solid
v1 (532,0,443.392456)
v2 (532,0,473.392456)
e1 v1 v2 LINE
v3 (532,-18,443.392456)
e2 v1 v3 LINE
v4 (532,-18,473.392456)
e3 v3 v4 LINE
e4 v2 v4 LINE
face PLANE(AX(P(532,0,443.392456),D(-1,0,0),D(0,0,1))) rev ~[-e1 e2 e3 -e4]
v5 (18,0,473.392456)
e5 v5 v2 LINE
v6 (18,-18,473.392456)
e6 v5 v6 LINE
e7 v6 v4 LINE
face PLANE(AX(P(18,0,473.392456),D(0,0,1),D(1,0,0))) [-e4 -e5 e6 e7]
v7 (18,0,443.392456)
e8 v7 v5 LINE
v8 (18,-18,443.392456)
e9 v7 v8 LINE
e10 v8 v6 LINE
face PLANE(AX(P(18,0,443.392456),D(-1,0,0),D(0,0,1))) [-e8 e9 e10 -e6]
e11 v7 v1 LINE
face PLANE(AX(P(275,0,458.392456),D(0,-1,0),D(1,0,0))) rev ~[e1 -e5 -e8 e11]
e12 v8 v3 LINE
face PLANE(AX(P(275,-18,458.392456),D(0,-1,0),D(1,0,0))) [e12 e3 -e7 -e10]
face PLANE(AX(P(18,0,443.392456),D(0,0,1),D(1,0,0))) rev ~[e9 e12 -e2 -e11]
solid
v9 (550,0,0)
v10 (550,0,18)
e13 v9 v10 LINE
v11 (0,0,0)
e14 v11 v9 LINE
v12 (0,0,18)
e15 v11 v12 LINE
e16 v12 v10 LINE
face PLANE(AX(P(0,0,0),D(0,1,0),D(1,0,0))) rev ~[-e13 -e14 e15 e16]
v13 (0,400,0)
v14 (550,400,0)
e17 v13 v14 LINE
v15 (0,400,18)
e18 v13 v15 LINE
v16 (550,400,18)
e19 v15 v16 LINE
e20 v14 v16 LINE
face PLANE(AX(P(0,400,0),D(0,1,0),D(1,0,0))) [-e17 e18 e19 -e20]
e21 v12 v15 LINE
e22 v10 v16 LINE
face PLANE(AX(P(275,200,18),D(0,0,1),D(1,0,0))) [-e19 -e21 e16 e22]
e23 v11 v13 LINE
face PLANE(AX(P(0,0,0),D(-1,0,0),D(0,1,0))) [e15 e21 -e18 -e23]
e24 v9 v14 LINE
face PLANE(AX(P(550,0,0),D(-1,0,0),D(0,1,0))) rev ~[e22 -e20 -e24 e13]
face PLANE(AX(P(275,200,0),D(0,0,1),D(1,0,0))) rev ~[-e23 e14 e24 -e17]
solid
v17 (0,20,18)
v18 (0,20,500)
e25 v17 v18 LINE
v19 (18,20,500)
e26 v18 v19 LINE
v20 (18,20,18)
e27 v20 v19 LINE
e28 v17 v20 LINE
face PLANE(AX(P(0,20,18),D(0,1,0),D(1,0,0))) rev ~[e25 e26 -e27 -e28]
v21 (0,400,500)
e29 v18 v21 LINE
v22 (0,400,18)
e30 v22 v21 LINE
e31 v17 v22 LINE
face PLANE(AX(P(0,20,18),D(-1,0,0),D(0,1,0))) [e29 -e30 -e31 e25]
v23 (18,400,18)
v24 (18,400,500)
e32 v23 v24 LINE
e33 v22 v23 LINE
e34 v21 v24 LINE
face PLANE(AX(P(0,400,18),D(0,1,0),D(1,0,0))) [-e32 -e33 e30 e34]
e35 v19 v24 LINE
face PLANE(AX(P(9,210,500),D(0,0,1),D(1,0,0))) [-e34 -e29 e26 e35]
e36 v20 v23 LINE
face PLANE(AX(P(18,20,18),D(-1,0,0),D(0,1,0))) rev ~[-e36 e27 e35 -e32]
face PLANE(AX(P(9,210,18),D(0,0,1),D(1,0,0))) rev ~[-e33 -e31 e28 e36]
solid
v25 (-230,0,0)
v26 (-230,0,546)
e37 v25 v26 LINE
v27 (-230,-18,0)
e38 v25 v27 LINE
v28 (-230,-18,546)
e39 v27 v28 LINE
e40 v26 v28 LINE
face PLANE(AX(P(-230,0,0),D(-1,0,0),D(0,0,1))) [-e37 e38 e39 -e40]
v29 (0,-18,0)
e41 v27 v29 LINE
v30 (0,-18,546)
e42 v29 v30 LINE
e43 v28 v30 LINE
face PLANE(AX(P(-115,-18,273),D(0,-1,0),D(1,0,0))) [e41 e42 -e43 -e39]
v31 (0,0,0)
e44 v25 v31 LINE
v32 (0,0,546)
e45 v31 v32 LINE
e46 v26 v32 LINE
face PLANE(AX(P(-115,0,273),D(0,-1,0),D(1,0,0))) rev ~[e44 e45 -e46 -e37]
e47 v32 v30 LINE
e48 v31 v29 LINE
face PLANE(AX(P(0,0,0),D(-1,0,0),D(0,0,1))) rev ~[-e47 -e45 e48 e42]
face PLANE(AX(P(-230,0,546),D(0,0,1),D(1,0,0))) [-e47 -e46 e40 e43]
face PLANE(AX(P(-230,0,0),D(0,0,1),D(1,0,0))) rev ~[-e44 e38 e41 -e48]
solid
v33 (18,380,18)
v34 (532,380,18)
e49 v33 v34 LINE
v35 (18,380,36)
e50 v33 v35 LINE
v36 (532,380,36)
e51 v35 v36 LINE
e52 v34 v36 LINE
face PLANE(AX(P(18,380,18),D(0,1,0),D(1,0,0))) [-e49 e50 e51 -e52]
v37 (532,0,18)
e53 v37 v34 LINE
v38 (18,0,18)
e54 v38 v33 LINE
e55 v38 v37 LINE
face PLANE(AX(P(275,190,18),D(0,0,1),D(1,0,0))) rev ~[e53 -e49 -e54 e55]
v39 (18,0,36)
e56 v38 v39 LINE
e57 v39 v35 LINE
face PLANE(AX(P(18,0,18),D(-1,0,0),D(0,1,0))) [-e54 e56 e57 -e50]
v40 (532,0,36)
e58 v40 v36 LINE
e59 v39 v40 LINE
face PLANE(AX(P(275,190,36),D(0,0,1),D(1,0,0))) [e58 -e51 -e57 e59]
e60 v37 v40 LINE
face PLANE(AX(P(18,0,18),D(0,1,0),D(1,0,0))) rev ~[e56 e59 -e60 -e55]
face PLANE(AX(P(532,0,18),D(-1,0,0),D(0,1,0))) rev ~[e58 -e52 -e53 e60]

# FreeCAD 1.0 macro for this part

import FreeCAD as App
import Part
import Sketcher

V = App.Vector


def add_polygon(sketch, points):
    """Adds a closed chain of lines whose ends are joined by coincident constraints."""
    first, n = sketch.GeometryCount, len(points)
    for a, b in zip(points, points[1:] + points[:1]):
        sketch.addGeometry(Part.LineSegment(App.Vector(*a, 0), App.Vector(*b, 0)), False)
    for i in range(n):
        sketch.addConstraint(Sketcher.Constraint("Coincident", first + i, 2, first + (i + 1) % n, 1))

doc = App.newDocument("Part")
body = doc.addObject("PartDesign::Body", "Body")

sketch1 = body.newObject("Sketcher::SketchObject", "Sketch")
sketch1.AttachmentSupport = (doc.getObject("XY_Plane"), [""])
sketch1.MapMode = "FlatFace"
add_polygon(sketch1, [(0, 400), (0, 0), (550, 0), (550, 400)])
sketch1.addConstraint([
    Sketcher.Constraint("Vertical", 0),
    Sketcher.Constraint("Horizontal", 1),
    Sketcher.Constraint("Vertical", 2),
    Sketcher.Constraint("Horizontal", 3),
    Sketcher.Constraint("Coincident", 0, 2, -1, 1),
    Sketcher.Constraint("DistanceX", 1, 1, 1, 2, 550.0),
    Sketcher.Constraint("DistanceY", 0, 2, 0, 1, 400.0),
])
pad1 = body.newObject("PartDesign::Pad", "Pad")
pad1.Profile = sketch1
pad1.Length = 18
body2 = doc.addObject("PartDesign::Body", "Body001")

sketch2 = body2.newObject("Sketcher::SketchObject", "Sketch001")
sketch2.AttachmentSupport = (doc.getObject("XY_Plane001"), [""])
sketch2.MapMode = "FlatFace"
sketch2.AttachmentOffset = App.Placement(V(0, 0, 18), App.Rotation())
add_polygon(sketch2, [(0, 400), (0, 20), (18, 20), (18, 400)])
sketch2.addConstraint([
    Sketcher.Constraint("Vertical", 0),
    Sketcher.Constraint("Horizontal", 1),
    Sketcher.Constraint("Vertical", 2),
    Sketcher.Constraint("Horizontal", 3),
    Sketcher.Constraint("PointOnObject", 0, 2, -2),
    Sketcher.Constraint("DistanceX", 1, 1, 1, 2, 18.0),
    Sketcher.Constraint("DistanceY", 0, 2, 0, 1, 380.0),
    Sketcher.Constraint("DistanceY", -1, 1, 0, 2, 20.0),
])
pad2 = body2.newObject("PartDesign::Pad", "Pad001")
pad2.Profile = sketch2
pad2.Length = 482
body3 = doc.addObject("PartDesign::Body", "Body002")

sketch3 = body3.newObject("Sketcher::SketchObject", "Sketch002")
sketch3.AttachmentSupport = (doc.getObject("XZ_Plane002"), [""])
sketch3.MapMode = "FlatFace"
add_polygon(sketch3, [(18, 473), (18, 443), (532, 443), (532, 473)])
sketch3.addConstraint([
    Sketcher.Constraint("Vertical", 0),
    Sketcher.Constraint("Horizontal", 1),
    Sketcher.Constraint("Vertical", 2),
    Sketcher.Constraint("Horizontal", 3),
    Sketcher.Constraint("DistanceX", 1, 1, 1, 2, 514.0),
    Sketcher.Constraint("DistanceY", 0, 2, 0, 1, 30.0),
    Sketcher.Constraint("DistanceX", -1, 1, 0, 2, 18.0),
    Sketcher.Constraint("DistanceY", -1, 1, 0, 2, 443.392456),
])
pad3 = body3.newObject("PartDesign::Pad", "Pad002")
pad3.Profile = sketch3
pad3.Length = 18
body4 = doc.addObject("PartDesign::Body", "Body003")

sketch4 = body4.newObject("Sketcher::SketchObject", "Sketch003")
sketch4.AttachmentSupport = (doc.getObject("XY_Plane003"), [""])
sketch4.MapMode = "FlatFace"
sketch4.AttachmentOffset = App.Placement(V(0, 0, 18), App.Rotation())
add_polygon(sketch4, [(18, 380), (18, 0), (532, 0), (532, 380)])
sketch4.addConstraint([
    Sketcher.Constraint("Vertical", 0),
    Sketcher.Constraint("Horizontal", 1),
    Sketcher.Constraint("Vertical", 2),
    Sketcher.Constraint("Horizontal", 3),
    Sketcher.Constraint("PointOnObject", 0, 2, -1),
    Sketcher.Constraint("DistanceX", 1, 1, 1, 2, 514.0),
    Sketcher.Constraint("DistanceY", 0, 2, 0, 1, 380.0),
    Sketcher.Constraint("DistanceX", -1, 1, 0, 2, 18.0),
])
pad4 = body4.newObject("PartDesign::Pad", "Pad003")
pad4.Profile = sketch4
pad4.Length = 18
body5 = doc.addObject("PartDesign::Body", "Body004")

sketch5 = body5.newObject("Sketcher::SketchObject", "Sketch004")
sketch5.AttachmentSupport = (doc.getObject("XZ_Plane004"), [""])
sketch5.MapMode = "FlatFace"
add_polygon(sketch5, [(-230, 546), (-230, 0), (0, 0), (0, 546)])
sketch5.addConstraint([
    Sketcher.Constraint("Vertical", 0),
    Sketcher.Constraint("Horizontal", 1),
    Sketcher.Constraint("Vertical", 2),
    Sketcher.Constraint("Horizontal", 3),
    Sketcher.Constraint("Coincident", 1, 2, -1, 1),
    Sketcher.Constraint("DistanceX", 1, 1, 1, 2, 230.0),
    Sketcher.Constraint("DistanceY", 0, 2, 0, 1, 546.0),
])
pad5 = body5.newObject("PartDesign::Pad", "Pad004")
pad5.Profile = sketch5
pad5.Length = 18

doc.recompute()
